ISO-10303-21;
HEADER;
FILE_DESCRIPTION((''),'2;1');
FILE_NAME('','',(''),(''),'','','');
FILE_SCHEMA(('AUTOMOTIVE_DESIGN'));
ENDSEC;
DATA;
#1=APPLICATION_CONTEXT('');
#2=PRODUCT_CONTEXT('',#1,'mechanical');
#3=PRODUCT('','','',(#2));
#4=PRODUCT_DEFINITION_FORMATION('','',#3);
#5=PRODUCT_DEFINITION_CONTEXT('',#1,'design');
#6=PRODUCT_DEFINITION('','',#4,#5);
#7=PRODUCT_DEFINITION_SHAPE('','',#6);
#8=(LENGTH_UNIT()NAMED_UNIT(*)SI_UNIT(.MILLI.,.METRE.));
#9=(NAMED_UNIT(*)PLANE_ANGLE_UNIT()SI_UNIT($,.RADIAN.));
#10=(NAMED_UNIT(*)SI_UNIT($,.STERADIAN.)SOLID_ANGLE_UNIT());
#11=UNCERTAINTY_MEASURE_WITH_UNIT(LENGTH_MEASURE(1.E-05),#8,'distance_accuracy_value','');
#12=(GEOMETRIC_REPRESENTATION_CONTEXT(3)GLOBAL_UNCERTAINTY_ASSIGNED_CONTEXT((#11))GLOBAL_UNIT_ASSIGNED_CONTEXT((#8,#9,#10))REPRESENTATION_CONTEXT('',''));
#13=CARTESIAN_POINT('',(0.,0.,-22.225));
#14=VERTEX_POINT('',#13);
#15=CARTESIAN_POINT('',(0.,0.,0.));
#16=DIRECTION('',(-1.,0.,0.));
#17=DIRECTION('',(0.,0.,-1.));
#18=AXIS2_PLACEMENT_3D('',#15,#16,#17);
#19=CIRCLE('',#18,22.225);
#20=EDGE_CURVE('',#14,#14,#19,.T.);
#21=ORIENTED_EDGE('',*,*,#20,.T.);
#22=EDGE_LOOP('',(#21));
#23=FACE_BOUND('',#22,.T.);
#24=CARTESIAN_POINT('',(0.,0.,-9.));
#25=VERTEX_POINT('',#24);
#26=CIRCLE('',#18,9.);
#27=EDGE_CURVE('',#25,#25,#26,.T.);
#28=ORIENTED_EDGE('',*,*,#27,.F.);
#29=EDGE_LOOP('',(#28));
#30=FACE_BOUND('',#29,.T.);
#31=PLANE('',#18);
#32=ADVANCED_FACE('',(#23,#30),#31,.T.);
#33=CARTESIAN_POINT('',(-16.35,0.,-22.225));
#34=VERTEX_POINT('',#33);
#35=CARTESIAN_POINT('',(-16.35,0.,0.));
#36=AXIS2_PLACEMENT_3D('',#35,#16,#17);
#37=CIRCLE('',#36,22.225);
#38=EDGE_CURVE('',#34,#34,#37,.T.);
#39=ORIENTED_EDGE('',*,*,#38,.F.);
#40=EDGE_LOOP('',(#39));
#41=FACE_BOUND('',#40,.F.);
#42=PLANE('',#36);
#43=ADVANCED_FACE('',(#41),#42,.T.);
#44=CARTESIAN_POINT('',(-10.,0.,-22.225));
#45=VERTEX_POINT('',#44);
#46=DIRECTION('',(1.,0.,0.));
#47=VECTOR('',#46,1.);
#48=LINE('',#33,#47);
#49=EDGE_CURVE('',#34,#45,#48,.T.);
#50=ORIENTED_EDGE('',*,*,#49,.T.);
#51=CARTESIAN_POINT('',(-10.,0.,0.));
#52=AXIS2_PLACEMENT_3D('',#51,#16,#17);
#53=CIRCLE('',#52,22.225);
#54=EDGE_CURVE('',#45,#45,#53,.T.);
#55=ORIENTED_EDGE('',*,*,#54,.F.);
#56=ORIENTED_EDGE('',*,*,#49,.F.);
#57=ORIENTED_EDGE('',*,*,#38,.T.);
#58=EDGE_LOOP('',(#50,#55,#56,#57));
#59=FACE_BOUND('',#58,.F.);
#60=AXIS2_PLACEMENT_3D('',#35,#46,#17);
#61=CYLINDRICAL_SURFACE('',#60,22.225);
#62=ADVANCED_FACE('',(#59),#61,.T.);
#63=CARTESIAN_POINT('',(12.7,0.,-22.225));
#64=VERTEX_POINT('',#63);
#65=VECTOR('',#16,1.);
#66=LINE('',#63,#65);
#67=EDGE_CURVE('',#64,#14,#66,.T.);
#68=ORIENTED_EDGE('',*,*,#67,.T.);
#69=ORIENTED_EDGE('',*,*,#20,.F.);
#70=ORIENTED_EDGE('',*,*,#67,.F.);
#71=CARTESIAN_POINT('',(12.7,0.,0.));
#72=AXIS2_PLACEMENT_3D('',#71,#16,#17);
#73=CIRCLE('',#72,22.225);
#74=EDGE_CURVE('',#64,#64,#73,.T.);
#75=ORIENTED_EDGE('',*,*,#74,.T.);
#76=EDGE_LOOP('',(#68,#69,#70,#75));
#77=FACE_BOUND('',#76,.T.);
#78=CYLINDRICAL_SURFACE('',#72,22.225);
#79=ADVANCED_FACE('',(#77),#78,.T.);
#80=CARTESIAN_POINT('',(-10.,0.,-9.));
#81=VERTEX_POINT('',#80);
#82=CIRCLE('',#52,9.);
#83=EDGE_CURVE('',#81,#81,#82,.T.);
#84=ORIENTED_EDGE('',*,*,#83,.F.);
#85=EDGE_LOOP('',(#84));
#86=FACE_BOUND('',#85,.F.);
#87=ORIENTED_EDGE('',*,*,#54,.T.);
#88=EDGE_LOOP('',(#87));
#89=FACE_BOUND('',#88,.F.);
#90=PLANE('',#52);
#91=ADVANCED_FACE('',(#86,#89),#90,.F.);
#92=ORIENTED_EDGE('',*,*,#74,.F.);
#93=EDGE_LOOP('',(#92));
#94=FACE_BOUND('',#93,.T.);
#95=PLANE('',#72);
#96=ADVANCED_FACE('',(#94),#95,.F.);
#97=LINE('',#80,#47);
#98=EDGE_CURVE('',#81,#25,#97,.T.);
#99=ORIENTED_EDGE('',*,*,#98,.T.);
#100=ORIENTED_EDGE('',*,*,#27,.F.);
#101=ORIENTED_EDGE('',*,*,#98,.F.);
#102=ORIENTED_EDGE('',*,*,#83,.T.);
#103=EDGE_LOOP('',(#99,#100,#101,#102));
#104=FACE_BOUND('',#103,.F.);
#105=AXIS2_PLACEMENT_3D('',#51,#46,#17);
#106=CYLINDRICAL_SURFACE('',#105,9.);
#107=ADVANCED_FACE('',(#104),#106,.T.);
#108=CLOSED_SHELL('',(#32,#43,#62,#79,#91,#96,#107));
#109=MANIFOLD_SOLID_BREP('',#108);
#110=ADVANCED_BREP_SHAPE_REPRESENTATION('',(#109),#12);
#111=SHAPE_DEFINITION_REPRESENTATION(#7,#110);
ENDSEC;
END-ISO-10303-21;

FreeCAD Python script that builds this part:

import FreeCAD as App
import Part
import Sketcher
from FreeCAD import Vector
Q = App.Units.Quantity

doc = App.newDocument("Part")
body = doc.addObject("PartDesign::Body", "Body")

# Sketch on XZ plane
sketch1 = doc.addObject("Sketcher::SketchObject", "Sketch")
body.addObject(sketch1)
sketch1.AttachmentSupport = (doc.XZ_Plane, [""])
sketch1.MapMode = "FlatFace"
sketch1.addGeometry(Part.LineSegment(Vector(12.7, 0, 0), Vector(12.7, -22.225, 0)), False)
sketch1.addGeometry(Part.LineSegment(Vector(12.7, -22.225, 0), Vector(0, -22.225, 0)), False)
sketch1.addGeometry(Part.LineSegment(Vector(0, -22.225, 0), Vector(0, -9, 0)), False)
sketch1.addGeometry(Part.LineSegment(Vector(0, -9, 0), Vector(-10, -9, 0)), False)
sketch1.addGeometry(Part.LineSegment(Vector(-10, -9, 0), Vector(-10, -22.225, 0)), False)
sketch1.addGeometry(Part.LineSegment(Vector(-10, -22.225, 0), Vector(-16.35, -22.225, 0)), False)
sketch1.addGeometry(Part.LineSegment(Vector(-16.35, -22.225, 0), Vector(-16.35, 0, 0)), False)
sketch1.addGeometry(Part.LineSegment(Vector(-16.35, 0, 0), Vector(12.7, 0, 0)), False)
sketch1.addConstraint(Sketcher.Constraint("Coincident", 0, 2, 1, 1))
sketch1.addConstraint(Sketcher.Constraint("Coincident", 1, 2, 2, 1))
sketch1.addConstraint(Sketcher.Constraint("Coincident", 2, 2, 3, 1))
sketch1.addConstraint(Sketcher.Constraint("Coincident", 3, 2, 4, 1))
sketch1.addConstraint(Sketcher.Constraint("Coincident", 4, 2, 5, 1))
sketch1.addConstraint(Sketcher.Constraint("Coincident", 5, 2, 6, 1))
sketch1.addConstraint(Sketcher.Constraint("Coincident", 6, 2, 7, 1))
sketch1.addConstraint(Sketcher.Constraint("Coincident", 7, 2, 0, 1))
sketch1.addConstraint(Sketcher.Constraint("Vertical", 0))
sketch1.addConstraint(Sketcher.Constraint("Horizontal", 1))
sketch1.addConstraint(Sketcher.Constraint("Vertical", 2))
sketch1.addConstraint(Sketcher.Constraint("Horizontal", 3))
sketch1.addConstraint(Sketcher.Constraint("Vertical", 4))
sketch1.addConstraint(Sketcher.Constraint("Horizontal", 5))
sketch1.addConstraint(Sketcher.Constraint("Vertical", 6))
sketch1.addConstraint(Sketcher.Constraint("Horizontal", 7))
sketch1.addConstraint(Sketcher.Constraint("PointOnObject", 1, 2, -2))
sketch1.addConstraint(Sketcher.Constraint("PointOnObject", 6, 2, -1))
sketch1.addConstraint(Sketcher.Constraint("Horizontal", 1, 2, 4, 2))
sketch1.addConstraint(Sketcher.Constraint("DistanceX", 1, 2, 1, 1, Q("0.5 in")))
sketch1.addConstraint(Sketcher.Constraint("DistanceX", 5, 2, 5, 1, Q("0.25 in")))
sketch1.addConstraint(Sketcher.Constraint("DistanceY", 0, 2, 0, 1, Q("0.875 in")))
sketch1.addConstraint(Sketcher.Constraint("DistanceX", 3, 2, 3, 1, Q("0.3937 in")))
sketch1.addConstraint(Sketcher.Constraint("DistanceY", 2, 2, -1, 1, 9.0))
revolution = doc.addObject("PartDesign::Revolution", "Revolution")
body.addObject(revolution)
revolution.Profile = sketch1
revolution.ReferenceAxis = (sketch1, ["H_Axis"])
revolution.Angle = 360

doc.recompute()
